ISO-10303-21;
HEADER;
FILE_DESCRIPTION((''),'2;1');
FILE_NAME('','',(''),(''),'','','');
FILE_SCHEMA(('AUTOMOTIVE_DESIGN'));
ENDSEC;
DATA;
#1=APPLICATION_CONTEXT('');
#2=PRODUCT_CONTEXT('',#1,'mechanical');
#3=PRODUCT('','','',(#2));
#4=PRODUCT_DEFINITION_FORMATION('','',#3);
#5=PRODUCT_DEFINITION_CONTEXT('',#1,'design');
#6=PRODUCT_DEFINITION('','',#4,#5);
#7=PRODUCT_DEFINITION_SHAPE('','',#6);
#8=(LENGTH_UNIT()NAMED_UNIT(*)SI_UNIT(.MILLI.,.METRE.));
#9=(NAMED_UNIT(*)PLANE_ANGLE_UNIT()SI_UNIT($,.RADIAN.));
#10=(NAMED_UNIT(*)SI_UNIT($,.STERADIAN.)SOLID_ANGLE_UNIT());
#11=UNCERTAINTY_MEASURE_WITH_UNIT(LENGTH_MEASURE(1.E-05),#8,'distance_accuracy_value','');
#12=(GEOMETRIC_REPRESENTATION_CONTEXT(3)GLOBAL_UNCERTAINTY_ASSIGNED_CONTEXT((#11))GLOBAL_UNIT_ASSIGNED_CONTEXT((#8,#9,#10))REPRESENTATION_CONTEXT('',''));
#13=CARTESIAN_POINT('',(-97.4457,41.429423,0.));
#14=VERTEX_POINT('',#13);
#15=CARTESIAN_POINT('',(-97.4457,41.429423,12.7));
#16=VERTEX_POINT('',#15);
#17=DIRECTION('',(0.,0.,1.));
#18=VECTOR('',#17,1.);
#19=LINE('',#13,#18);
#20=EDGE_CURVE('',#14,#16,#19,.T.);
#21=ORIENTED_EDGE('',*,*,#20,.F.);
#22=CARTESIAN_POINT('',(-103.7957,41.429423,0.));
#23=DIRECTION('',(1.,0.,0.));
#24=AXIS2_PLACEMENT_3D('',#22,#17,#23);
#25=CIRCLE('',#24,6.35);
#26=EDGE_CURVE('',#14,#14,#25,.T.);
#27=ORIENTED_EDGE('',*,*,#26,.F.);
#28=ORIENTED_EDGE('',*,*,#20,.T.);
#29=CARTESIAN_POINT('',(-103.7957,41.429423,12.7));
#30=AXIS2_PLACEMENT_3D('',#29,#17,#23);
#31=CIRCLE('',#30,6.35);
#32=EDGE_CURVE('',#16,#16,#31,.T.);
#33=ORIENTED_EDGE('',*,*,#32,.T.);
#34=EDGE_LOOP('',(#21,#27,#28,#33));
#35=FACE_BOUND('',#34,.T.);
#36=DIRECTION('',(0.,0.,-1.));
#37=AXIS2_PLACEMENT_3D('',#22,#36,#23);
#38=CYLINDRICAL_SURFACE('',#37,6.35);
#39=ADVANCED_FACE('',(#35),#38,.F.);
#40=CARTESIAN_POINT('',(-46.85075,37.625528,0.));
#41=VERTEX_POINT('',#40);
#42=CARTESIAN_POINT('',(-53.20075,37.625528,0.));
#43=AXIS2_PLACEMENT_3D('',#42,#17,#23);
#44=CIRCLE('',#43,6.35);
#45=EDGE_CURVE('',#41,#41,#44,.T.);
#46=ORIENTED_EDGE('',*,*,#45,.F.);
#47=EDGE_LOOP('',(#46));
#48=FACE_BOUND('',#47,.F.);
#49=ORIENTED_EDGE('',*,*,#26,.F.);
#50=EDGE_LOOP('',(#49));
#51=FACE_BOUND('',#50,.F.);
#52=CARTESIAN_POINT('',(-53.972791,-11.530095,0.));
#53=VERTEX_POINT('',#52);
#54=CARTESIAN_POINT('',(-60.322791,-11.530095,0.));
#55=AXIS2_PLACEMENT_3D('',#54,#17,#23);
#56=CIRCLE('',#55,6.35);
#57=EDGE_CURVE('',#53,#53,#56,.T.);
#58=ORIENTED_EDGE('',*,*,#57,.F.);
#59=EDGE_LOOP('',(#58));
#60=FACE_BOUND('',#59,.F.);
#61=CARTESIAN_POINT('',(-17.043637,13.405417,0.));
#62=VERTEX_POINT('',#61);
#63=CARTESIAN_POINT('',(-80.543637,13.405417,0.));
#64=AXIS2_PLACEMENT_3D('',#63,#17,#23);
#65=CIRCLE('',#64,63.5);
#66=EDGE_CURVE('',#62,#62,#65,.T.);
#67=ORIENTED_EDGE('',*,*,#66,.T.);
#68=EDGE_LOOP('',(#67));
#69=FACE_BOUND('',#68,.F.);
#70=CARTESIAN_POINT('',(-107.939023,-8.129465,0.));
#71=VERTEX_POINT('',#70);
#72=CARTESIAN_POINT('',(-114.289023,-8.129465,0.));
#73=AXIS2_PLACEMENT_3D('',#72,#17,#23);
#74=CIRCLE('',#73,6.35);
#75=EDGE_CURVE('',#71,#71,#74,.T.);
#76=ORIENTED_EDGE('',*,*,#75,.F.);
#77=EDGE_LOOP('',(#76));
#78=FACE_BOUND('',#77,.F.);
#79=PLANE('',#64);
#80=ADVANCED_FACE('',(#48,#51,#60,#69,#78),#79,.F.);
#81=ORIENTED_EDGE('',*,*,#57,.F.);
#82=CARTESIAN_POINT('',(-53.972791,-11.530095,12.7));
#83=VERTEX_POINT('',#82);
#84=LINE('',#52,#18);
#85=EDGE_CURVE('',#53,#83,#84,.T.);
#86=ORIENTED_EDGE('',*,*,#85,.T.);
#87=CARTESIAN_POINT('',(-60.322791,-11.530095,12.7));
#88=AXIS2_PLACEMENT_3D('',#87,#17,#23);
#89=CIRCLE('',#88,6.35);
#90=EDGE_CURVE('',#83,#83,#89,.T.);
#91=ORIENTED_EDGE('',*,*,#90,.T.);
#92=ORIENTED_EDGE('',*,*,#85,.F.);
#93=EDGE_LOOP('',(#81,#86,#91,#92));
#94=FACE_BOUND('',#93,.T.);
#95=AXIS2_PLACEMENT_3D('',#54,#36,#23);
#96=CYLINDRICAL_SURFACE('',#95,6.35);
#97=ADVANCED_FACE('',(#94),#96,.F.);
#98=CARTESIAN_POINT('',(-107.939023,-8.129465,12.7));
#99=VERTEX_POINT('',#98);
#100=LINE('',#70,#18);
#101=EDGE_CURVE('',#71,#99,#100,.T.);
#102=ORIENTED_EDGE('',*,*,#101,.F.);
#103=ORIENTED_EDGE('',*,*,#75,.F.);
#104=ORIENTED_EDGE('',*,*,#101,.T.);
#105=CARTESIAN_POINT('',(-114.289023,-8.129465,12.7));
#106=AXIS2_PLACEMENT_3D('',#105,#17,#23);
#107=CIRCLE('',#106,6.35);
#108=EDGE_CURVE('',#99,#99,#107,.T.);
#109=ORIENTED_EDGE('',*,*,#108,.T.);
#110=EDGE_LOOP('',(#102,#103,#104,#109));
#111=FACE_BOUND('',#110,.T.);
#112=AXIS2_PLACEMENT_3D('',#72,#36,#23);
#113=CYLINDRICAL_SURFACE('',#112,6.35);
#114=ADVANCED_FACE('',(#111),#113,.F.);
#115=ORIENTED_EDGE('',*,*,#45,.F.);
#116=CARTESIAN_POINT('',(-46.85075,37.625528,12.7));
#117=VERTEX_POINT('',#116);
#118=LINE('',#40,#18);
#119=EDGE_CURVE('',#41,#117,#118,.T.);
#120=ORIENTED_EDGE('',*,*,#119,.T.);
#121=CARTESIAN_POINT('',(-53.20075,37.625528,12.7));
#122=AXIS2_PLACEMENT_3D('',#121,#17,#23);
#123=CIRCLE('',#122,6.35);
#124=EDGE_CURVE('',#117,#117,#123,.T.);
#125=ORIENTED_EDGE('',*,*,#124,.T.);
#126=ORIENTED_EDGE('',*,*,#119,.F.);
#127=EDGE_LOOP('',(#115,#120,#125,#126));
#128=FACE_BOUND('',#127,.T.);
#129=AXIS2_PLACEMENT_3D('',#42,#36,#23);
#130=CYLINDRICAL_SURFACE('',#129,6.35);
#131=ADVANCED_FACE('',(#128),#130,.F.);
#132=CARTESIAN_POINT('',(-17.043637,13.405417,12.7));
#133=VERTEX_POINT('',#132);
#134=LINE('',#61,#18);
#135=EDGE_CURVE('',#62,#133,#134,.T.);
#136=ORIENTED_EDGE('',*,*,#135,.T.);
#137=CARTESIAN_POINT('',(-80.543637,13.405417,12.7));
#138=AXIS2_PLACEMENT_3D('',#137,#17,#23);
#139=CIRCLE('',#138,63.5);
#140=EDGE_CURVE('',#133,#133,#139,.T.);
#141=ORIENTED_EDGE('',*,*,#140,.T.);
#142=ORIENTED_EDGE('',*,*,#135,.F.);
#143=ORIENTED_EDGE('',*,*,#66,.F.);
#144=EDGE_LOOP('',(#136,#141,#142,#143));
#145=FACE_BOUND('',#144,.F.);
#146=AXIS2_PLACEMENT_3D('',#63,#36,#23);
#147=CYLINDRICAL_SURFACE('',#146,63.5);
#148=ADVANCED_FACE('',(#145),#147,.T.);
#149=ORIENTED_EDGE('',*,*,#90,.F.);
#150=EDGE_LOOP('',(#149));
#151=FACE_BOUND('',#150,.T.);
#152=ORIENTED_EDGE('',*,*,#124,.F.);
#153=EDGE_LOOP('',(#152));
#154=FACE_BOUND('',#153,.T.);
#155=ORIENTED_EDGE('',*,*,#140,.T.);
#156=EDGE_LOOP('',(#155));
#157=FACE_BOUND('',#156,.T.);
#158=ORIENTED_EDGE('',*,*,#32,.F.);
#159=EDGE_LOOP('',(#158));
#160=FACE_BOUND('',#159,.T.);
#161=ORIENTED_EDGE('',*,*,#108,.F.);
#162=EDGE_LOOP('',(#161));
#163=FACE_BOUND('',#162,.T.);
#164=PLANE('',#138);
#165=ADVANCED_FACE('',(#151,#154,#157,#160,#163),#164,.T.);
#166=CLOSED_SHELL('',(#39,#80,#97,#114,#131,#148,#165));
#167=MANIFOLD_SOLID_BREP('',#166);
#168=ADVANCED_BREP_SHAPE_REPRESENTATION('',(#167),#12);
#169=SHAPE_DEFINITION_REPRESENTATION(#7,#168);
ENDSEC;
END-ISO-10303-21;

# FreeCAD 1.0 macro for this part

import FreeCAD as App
import Part
import Sketcher
from FreeCAD import Vector
Q = App.Units.Quantity

doc = App.newDocument("Part")
body = doc.addObject("PartDesign::Body", "Body")

sketch1 = doc.addObject("Sketcher::SketchObject", "Sketch")
body.addObject(sketch1)
sketch1.AttachmentSupport = (doc.XY_Plane, [""])
sketch1.MapMode = "FlatFace"
sketch1.addGeometry(Part.Circle(Vector(-80.543637, 13.405417, 0), Vector(0, 0, 1), 63.5), False)
sketch1.addGeometry(Part.Circle(Vector(-114.289023, -8.129465, 0), Vector(0, 0, 1), 6.35), False)
sketch1.addGeometry(Part.Circle(Vector(-60.322791, -11.530095, 0), Vector(0, 0, 1), 6.35), False)
sketch1.addGeometry(Part.Circle(Vector(-103.7957, 41.429423, 0), Vector(0, 0, 1), 6.35), False)
sketch1.addGeometry(Part.Circle(Vector(-53.20075, 37.625528, 0), Vector(0, 0, 1), 6.35), False)
sketch1.addConstraint(Sketcher.Constraint("Equal", 1, 2))
sketch1.addConstraint(Sketcher.Constraint("Equal", 2, 3))
sketch1.addConstraint(Sketcher.Constraint("Equal", 3, 4))
sketch1.addConstraint(Sketcher.Constraint("Diameter", 0, Q("5 in")))
sketch1.addConstraint(Sketcher.Constraint("Diameter", 1, Q("0.5 in")))
sketch1.addConstraint(Sketcher.Constraint("DistanceX", 3, 3, -1, 1, Q("103.7957 mm")))
sketch1.addConstraint(Sketcher.Constraint("DistanceX", 2, 3, -1, 1, Q("60.322791 mm")))
sketch1.addConstraint(Sketcher.Constraint("DistanceX", 4, 3, -1, 1, Q("53.20075 mm")))
sketch1.addConstraint(Sketcher.Constraint("DistanceY", -1, 1, 4, 3, Q("37.625528 mm")))
sketch1.addConstraint(Sketcher.Constraint("DistanceY", 1, 3, 0, 3, Q("21.534882 mm")))
sketch1.addConstraint(Sketcher.Constraint("DistanceY", 2, 3, 0, 3, Q("24.935512 mm")))
sketch1.addConstraint(Sketcher.Constraint("DistanceX", 1, 3, 2, 3, Q("53.966232 mm")))
sketch1.addConstraint(Sketcher.Constraint("DistanceY", 2, 3, 3, 3, Q("52.959518 mm")))
sketch1.addConstraint(Sketcher.Constraint("DistanceY", 0, 3, 4, 3, Q("24.220111 mm")))
sketch1.addConstraint(Sketcher.Constraint("DistanceX", 0, 3, -1, 1, Q("80.543637 mm")))
pad1 = doc.addObject("PartDesign::Pad", "Pad")
body.addObject(pad1)
pad1.Profile = sketch1
pad1.Length = Q("0.5 in")

doc.recompute()
